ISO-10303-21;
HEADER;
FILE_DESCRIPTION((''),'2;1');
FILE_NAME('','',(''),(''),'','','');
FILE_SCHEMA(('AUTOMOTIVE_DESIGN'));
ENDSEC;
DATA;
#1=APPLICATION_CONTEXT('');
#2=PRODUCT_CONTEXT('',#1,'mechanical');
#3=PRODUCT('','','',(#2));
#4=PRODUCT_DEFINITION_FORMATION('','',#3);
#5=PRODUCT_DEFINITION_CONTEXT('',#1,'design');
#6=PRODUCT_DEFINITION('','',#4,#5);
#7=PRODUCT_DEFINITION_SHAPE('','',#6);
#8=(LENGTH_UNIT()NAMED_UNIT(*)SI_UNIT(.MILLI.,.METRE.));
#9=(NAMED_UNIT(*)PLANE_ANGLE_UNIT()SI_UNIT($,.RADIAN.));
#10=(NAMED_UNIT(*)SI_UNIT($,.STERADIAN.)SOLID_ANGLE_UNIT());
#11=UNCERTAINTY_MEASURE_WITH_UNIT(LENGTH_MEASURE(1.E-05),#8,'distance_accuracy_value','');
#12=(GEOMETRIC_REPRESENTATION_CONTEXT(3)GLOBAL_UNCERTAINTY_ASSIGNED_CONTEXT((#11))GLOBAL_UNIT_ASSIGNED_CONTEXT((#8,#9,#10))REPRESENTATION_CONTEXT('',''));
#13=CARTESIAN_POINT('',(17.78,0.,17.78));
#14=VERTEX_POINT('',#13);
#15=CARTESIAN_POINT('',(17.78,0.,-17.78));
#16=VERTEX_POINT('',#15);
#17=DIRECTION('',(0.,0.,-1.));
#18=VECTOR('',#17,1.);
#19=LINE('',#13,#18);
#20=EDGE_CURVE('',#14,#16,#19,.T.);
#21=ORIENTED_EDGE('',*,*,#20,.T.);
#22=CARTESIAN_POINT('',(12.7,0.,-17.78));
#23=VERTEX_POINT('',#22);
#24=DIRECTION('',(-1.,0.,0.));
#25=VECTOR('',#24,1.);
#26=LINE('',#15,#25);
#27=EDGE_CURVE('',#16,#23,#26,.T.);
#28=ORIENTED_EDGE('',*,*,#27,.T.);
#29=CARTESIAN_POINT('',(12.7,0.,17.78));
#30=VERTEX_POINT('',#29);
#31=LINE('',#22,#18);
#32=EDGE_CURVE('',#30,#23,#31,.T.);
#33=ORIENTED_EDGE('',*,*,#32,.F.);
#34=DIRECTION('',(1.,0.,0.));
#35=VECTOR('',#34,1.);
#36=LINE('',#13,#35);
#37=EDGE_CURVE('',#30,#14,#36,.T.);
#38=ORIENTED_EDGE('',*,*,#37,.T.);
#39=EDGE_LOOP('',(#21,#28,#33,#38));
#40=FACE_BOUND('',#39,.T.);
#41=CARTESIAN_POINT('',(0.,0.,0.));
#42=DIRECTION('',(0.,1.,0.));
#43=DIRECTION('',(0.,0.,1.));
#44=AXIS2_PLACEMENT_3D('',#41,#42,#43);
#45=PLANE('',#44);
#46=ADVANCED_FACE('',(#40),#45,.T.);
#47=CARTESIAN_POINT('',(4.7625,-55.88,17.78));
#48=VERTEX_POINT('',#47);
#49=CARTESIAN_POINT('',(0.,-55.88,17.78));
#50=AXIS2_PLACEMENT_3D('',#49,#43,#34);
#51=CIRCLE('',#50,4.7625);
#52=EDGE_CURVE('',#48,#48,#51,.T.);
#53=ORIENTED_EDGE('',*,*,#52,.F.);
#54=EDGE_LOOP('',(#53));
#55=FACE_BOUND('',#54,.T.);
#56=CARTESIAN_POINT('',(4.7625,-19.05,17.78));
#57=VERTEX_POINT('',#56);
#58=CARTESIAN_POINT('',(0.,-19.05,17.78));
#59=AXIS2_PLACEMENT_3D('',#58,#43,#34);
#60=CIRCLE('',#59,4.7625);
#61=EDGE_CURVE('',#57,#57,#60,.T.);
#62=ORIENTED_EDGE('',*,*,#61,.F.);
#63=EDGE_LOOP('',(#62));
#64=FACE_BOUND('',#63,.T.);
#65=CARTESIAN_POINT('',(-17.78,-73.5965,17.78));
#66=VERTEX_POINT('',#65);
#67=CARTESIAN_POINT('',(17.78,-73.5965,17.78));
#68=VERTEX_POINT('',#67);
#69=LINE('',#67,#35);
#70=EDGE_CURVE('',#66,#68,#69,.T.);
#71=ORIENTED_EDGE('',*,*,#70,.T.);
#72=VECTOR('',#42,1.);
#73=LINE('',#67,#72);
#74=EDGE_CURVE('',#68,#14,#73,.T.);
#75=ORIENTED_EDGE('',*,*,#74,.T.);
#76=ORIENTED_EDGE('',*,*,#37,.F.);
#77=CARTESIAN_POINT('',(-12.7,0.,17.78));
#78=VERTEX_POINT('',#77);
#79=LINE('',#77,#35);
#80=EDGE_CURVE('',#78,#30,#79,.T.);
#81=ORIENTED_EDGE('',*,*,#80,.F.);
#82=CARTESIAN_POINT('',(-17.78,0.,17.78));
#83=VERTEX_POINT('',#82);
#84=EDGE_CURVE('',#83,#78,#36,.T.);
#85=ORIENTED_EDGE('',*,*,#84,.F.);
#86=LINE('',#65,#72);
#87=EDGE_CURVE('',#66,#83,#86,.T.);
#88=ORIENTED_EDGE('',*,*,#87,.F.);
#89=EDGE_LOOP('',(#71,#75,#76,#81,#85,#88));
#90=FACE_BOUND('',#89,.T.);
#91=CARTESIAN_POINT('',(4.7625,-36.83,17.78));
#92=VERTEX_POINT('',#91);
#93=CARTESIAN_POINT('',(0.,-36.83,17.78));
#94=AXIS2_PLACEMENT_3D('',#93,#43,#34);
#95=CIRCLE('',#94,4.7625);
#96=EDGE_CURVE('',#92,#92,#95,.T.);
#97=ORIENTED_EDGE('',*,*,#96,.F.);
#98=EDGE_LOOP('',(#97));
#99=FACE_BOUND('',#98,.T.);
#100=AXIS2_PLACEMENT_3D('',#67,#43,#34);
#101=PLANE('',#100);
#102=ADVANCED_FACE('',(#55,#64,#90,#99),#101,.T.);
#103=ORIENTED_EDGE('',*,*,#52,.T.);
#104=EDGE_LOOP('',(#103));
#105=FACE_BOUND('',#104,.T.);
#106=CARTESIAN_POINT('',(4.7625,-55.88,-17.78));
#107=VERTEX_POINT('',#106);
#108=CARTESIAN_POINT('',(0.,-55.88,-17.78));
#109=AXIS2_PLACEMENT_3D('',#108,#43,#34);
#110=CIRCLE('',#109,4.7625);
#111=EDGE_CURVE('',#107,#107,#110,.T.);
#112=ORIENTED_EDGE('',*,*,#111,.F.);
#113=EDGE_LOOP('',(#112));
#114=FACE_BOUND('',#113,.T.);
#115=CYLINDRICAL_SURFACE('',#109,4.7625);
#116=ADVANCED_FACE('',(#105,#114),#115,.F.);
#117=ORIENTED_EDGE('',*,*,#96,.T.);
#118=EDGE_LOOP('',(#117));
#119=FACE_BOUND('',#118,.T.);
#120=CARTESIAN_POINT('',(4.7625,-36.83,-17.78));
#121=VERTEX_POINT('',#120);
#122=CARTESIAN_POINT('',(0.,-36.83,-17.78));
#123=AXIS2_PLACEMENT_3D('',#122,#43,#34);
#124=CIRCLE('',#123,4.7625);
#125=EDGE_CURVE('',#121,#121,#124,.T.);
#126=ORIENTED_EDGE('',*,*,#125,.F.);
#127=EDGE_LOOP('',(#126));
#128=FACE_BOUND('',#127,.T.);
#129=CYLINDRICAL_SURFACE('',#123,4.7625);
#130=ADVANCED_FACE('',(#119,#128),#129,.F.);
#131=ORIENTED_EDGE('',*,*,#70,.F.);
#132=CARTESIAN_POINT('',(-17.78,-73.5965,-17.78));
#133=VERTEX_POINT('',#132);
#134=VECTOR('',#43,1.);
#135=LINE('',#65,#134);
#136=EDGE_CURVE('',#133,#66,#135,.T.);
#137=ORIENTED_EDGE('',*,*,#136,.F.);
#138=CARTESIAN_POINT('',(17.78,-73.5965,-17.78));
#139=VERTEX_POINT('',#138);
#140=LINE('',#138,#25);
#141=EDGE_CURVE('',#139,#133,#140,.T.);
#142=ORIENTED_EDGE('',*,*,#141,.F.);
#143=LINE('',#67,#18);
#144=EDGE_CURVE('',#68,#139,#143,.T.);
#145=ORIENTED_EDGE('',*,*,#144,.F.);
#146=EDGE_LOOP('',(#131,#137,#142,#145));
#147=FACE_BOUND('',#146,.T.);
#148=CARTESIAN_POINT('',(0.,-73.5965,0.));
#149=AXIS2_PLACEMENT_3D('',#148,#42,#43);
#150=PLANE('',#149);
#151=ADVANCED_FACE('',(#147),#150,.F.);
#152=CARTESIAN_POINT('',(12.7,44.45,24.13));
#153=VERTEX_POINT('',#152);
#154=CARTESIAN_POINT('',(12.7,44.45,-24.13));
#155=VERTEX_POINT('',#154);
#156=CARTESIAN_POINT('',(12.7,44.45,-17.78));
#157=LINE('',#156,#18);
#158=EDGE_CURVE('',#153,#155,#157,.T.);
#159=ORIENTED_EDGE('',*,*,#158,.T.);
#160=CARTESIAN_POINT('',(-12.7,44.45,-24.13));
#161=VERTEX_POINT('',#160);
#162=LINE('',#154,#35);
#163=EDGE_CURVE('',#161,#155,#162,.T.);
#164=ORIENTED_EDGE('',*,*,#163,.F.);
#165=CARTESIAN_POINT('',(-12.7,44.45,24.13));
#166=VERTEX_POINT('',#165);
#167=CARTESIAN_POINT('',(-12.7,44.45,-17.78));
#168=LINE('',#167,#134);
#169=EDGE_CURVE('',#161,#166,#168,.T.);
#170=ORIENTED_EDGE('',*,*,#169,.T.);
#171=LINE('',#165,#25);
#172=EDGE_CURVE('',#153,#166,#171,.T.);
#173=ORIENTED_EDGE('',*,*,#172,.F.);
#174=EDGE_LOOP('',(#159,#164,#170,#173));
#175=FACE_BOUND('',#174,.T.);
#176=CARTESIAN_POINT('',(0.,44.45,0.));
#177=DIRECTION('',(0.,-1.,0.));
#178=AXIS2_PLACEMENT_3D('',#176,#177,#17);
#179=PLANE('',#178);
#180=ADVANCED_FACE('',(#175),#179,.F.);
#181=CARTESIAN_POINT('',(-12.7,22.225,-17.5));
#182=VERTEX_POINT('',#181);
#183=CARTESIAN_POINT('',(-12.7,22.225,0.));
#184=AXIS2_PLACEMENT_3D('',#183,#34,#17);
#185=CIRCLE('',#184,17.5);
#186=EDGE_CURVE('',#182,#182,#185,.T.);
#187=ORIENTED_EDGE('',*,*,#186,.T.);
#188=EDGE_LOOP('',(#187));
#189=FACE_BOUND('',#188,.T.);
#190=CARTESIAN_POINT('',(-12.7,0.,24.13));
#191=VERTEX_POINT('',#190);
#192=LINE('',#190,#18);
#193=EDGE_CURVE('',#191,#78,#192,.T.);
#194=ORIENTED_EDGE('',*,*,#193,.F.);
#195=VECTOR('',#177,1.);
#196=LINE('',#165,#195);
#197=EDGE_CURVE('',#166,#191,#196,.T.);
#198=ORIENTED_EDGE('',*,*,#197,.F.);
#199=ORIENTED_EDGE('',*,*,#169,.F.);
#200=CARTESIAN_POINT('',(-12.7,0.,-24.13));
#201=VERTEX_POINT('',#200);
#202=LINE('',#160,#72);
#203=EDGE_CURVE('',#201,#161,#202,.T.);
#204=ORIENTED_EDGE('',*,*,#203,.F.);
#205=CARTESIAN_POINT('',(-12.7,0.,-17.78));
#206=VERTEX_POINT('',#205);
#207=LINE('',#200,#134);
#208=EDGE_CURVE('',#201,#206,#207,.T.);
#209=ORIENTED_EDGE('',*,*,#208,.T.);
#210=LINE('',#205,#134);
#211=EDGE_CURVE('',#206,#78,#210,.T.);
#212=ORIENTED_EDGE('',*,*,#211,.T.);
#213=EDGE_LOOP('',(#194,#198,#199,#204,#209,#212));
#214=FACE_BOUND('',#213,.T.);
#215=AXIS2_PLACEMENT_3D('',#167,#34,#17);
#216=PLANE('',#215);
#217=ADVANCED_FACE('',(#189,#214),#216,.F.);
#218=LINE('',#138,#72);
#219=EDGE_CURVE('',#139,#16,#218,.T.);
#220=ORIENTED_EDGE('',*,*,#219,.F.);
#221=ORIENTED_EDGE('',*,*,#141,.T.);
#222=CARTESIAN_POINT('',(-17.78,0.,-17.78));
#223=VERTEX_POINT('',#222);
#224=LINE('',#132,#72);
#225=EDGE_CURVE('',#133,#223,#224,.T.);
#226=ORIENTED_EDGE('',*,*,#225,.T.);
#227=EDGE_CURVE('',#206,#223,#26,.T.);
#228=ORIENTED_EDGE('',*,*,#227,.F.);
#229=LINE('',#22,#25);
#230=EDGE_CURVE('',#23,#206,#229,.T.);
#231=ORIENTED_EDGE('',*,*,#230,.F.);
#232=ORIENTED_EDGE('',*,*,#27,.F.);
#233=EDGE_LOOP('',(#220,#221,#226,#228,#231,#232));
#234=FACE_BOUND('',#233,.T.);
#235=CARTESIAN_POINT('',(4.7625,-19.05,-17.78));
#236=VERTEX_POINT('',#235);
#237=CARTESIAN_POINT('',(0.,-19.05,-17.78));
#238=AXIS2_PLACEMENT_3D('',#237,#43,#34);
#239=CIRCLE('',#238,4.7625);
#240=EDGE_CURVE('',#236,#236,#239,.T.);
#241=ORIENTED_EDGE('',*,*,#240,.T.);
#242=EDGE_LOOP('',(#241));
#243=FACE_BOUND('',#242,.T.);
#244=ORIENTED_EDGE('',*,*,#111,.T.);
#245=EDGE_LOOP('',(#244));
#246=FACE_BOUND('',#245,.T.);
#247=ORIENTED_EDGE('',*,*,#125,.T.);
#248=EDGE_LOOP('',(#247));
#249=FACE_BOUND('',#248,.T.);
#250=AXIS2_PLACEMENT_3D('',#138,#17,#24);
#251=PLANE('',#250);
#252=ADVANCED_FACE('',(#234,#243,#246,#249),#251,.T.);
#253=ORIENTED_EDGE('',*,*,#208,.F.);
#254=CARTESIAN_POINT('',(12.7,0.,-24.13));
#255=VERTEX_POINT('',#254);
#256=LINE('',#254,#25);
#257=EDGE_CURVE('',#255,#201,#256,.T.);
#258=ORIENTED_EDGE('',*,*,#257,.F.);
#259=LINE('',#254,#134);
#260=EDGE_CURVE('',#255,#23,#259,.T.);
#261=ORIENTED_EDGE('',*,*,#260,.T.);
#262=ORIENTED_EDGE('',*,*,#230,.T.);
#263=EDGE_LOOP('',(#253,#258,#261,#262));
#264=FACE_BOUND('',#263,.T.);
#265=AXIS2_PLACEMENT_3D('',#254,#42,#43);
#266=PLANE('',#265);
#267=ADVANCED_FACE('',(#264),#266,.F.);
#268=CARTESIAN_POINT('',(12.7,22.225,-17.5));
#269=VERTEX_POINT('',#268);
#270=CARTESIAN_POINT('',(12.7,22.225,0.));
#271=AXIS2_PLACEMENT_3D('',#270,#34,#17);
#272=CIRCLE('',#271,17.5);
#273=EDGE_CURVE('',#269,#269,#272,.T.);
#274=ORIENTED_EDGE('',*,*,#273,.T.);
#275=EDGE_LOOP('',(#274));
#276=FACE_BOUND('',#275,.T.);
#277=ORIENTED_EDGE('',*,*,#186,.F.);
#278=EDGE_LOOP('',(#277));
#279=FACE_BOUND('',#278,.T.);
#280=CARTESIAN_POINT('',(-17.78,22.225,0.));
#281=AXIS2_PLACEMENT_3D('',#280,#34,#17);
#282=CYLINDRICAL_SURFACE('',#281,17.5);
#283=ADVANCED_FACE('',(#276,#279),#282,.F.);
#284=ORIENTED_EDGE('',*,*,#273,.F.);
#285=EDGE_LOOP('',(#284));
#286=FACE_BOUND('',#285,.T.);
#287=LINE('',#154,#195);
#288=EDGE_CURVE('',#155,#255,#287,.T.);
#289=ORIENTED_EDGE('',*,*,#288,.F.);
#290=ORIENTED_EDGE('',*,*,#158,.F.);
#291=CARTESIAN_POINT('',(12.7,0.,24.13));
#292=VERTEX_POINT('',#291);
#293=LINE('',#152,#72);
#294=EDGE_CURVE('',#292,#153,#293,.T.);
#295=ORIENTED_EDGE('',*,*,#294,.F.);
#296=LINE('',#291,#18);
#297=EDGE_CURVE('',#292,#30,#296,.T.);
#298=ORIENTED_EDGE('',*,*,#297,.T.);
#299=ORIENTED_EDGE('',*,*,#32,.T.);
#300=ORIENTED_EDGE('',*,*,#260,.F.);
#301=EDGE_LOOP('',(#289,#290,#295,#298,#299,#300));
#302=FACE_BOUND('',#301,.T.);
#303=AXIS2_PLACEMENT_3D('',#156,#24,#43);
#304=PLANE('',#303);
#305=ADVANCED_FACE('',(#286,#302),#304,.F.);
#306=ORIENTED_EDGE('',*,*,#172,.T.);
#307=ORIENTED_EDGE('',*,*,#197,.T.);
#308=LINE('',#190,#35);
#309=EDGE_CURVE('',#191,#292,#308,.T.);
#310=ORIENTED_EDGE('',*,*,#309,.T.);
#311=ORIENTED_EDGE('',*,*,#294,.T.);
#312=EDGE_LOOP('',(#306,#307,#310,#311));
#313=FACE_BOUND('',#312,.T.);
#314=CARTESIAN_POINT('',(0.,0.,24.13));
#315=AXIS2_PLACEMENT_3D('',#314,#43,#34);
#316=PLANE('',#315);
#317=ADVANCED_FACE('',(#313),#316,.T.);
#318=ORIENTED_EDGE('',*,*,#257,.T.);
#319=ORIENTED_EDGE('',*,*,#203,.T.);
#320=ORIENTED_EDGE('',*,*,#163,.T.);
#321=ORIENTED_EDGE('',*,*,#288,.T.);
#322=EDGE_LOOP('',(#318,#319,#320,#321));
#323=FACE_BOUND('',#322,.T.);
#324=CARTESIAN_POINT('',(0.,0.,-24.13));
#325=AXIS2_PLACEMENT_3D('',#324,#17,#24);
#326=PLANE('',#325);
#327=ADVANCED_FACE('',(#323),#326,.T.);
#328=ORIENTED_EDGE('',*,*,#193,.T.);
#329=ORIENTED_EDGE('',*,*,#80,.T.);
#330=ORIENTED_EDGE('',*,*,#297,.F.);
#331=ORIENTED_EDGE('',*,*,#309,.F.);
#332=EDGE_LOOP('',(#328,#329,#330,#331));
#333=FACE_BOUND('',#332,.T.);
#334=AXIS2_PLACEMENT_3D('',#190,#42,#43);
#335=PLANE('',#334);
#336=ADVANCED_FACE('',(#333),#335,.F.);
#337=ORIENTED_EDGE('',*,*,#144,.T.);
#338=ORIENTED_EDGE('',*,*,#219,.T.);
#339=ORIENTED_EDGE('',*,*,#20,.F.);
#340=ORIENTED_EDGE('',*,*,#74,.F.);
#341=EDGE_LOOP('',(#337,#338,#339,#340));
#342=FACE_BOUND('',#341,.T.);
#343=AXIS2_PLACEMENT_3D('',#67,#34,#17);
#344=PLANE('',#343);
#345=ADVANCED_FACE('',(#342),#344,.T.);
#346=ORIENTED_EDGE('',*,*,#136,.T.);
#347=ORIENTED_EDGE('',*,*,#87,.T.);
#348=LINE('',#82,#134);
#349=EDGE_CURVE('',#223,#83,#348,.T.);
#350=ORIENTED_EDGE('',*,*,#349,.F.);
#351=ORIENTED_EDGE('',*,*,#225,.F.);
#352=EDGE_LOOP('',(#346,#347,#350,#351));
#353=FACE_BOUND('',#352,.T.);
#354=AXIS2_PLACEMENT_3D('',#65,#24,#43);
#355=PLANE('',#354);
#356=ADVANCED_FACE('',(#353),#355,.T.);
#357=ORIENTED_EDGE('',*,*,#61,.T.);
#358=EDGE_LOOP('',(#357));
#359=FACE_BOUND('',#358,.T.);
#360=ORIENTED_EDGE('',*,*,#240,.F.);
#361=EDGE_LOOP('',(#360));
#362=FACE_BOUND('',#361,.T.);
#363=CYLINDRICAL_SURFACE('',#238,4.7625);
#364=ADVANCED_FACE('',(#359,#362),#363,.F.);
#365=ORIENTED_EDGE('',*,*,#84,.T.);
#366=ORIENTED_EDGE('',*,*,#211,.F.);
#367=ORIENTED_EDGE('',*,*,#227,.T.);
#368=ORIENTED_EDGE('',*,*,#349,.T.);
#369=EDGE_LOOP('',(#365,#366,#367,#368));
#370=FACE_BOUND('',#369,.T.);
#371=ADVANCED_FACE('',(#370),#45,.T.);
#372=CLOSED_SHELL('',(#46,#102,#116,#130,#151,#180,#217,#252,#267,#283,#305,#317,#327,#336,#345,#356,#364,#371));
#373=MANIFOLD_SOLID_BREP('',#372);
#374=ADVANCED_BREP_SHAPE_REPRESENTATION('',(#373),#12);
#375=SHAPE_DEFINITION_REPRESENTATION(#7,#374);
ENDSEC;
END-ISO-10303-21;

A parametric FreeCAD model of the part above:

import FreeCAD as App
import Part
import Sketcher
Q = App.Units.Quantity

doc = App.newDocument("Part")
body = doc.addObject("PartDesign::Body", "Body")

sketch1 = doc.addObject("Sketcher::SketchObject", "Sketch")
body.addObject(sketch1)
sketch1.AttachmentSupport = (doc.XZ_Plane, [""])
sketch1.MapMode = "FlatFace"
sketch1.addGeometry([
    Part.LineSegment(App.Vector(-17.78, -17.78, 0), App.Vector(-17.78, 17.78, 0)),
    Part.LineSegment(App.Vector(-17.78, 17.78, 0), App.Vector(17.78, 17.78, 0)),
    Part.LineSegment(App.Vector(17.78, 17.78, 0), App.Vector(17.78, -17.78, 0)),
    Part.LineSegment(App.Vector(17.78, -17.78, 0), App.Vector(-17.78, -17.78, 0)),
], False)
sketch1.addConstraint([
    Sketcher.Constraint("Coincident", 0, 2, 1, 1),
    Sketcher.Constraint("Coincident", 1, 2, 2, 1),
    Sketcher.Constraint("Coincident", 2, 2, 3, 1),
    Sketcher.Constraint("Coincident", 3, 2, 0, 1),
    Sketcher.Constraint("Vertical", 0),
    Sketcher.Constraint("Horizontal", 1),
    Sketcher.Constraint("Vertical", 2),
    Sketcher.Constraint("Horizontal", 3),
    Sketcher.Constraint("Symmetric", 0, 2, 2, 2, -1, 1),
    Sketcher.Constraint("Equal", 3, 0),
    Sketcher.Constraint("DistanceX", 1, 1, 1, 2, Q("1.4 in")),
])
pad1 = doc.addObject("PartDesign::Pad", "Pad")
body.addObject(pad1)
pad1.Profile = sketch1
pad1.Length = Q("2.8975 in")

sketch2 = doc.addObject("Sketcher::SketchObject", "Sketch001")
body.addObject(sketch2)
sketch2.AttachmentSupport = (doc.XY_Plane, [""])
sketch2.MapMode = "FlatFace"
sketch2.AttachmentOffset = App.Placement(App.Vector(0, 0, 0.7 * 25.4), App.Rotation())
sketch2.addGeometry([
    Part.Circle(App.Vector(0, -19.05, 0), App.Vector(0, 0, 1), 4.7625),
    Part.Circle(App.Vector(0, -36.83, 0), App.Vector(0, 0, 1), 4.7625),
    Part.Circle(App.Vector(0, -55.88, 0), App.Vector(0, 0, 1), 4.7625),
], False)
sketch2.addConstraint([
    Sketcher.Constraint("Equal", 0, 1),
    Sketcher.Constraint("Equal", 1, 2),
    Sketcher.Constraint("PointOnObject", 0, 3, -2),
    Sketcher.Constraint("PointOnObject", 1, 3, -2),
    Sketcher.Constraint("PointOnObject", 2, 3, -2),
    Sketcher.Constraint("Diameter", 0, Q("0.375 in")),
    Sketcher.Constraint("DistanceY", 2, 3, -1, 1, Q("2.2 in")),
    Sketcher.Constraint("DistanceY", 1, 3, 0, 3, Q("0.7 in")),
    Sketcher.Constraint("DistanceY", 0, 3, -1, 1, Q("0.75 in")),
])
pocket1 = doc.addObject("PartDesign::Pocket", "Pocket")
body.addObject(pocket1)
pocket1.Profile = sketch2
pocket1.Type = "ThroughAll"

sketch3 = doc.addObject("Sketcher::SketchObject", "Sketch002")
body.addObject(sketch3)
sketch3.AttachmentSupport = (doc.XZ_Plane, [""])
sketch3.MapMode = "FlatFace"
sketch3.addGeometry([
    Part.LineSegment(App.Vector(-12.7, -17.78, 0), App.Vector(-12.7, 17.78, 0)),
    Part.LineSegment(App.Vector(-12.7, 17.78, 0), App.Vector(12.7, 17.78, 0)),
    Part.LineSegment(App.Vector(12.7, 17.78, 0), App.Vector(12.7, -17.78, 0)),
    Part.LineSegment(App.Vector(12.7, -17.78, 0), App.Vector(-12.7, -17.78, 0)),
], False)
sketch3.addConstraint([
    Sketcher.Constraint("Coincident", 0, 2, 1, 1),
    Sketcher.Constraint("Coincident", 1, 2, 2, 1),
    Sketcher.Constraint("Coincident", 2, 2, 3, 1),
    Sketcher.Constraint("Coincident", 3, 2, 0, 1),
    Sketcher.Constraint("Vertical", 0),
    Sketcher.Constraint("Horizontal", 1),
    Sketcher.Constraint("Vertical", 2),
    Sketcher.Constraint("Horizontal", 3),
    Sketcher.Constraint("Symmetric", 0, 2, 2, 2, -1, 1),
    Sketcher.Constraint("DistanceX", 1, 1, 1, 2, Q("1 in")),
    Sketcher.Constraint("DistanceY", 0, 1, 0, 2, Q("1.4 in")),
])
pad2 = doc.addObject("PartDesign::Pad", "Pad001")
body.addObject(pad2)
pad2.Profile = sketch3
pad2.Length = Q("1.75 in")
pad2.Reversed = True

sketch4 = doc.addObject("Sketcher::SketchObject", "Sketch003")
body.addObject(sketch4)
sketch4.AttachmentSupport = (doc.XY_Plane, [""])
sketch4.MapMode = "FlatFace"
sketch4.AttachmentOffset = App.Placement(App.Vector(0, 0, 0.7 * 25.4), App.Rotation())
sketch4.addGeometry([
    Part.LineSegment(App.Vector(-12.7, 44.45, 0), App.Vector(-12.7, 0, 0)),
    Part.LineSegment(App.Vector(-12.7, 0, 0), App.Vector(12.7, 0, 0)),
    Part.LineSegment(App.Vector(12.7, 0, 0), App.Vector(12.7, 44.45, 0)),
    Part.LineSegment(App.Vector(12.7, 44.45, 0), App.Vector(-12.7, 44.45, 0)),
], False)
sketch4.addConstraint([
    Sketcher.Constraint("Coincident", 0, 2, 1, 1),
    Sketcher.Constraint("Coincident", 1, 2, 2, 1),
    Sketcher.Constraint("Coincident", 2, 2, 3, 1),
    Sketcher.Constraint("Coincident", 3, 2, 0, 1),
    Sketcher.Constraint("Vertical", 0),
    Sketcher.Constraint("Horizontal", 1),
    Sketcher.Constraint("Vertical", 2),
    Sketcher.Constraint("Horizontal", 3),
    Sketcher.Constraint("Symmetric", 0, 2, 1, 2, -1, 1),
    Sketcher.Constraint("DistanceX", 1, 1, 1, 2, Q("1 in")),
    Sketcher.Constraint("DistanceY", 0, 2, 0, 1, Q("1.75 in")),
])
pad3 = doc.addObject("PartDesign::Pad", "Pad002")
body.addObject(pad3)
pad3.Profile = sketch4
pad3.Length = Q("0.25 in")

sketch5 = doc.addObject("Sketcher::SketchObject", "Sketch004")
body.addObject(sketch5)
sketch5.AttachmentSupport = (doc.XY_Plane, [""])
sketch5.MapMode = "FlatFace"
sketch5.AttachmentOffset = App.Placement(App.Vector(0, 0, -0.7 * 25.4), App.Rotation())
sketch5.addGeometry([
    Part.LineSegment(App.Vector(12.7, 44.45, 0), App.Vector(12.7, 0, 0)),
    Part.LineSegment(App.Vector(12.7, 0, 0), App.Vector(-12.7, 0, 0)),
    Part.LineSegment(App.Vector(-12.7, 0, 0), App.Vector(-12.7, 44.45, 0)),
    Part.LineSegment(App.Vector(-12.7, 44.45, 0), App.Vector(12.7, 44.45, 0)),
], False)
sketch5.addConstraint([
    Sketcher.Constraint("Coincident", 0, 2, 1, 1),
    Sketcher.Constraint("Coincident", 1, 2, 2, 1),
    Sketcher.Constraint("Coincident", 2, 2, 3, 1),
    Sketcher.Constraint("Coincident", 3, 2, 0, 1),
    Sketcher.Constraint("Vertical", 0),
    Sketcher.Constraint("Horizontal", 1),
    Sketcher.Constraint("Vertical", 2),
    Sketcher.Constraint("Horizontal", 3),
    Sketcher.Constraint("Symmetric", 0, 2, 1, 2, -1, 1),
    Sketcher.Constraint("DistanceX", 1, 2, 1, 1, Q("1 in")),
    Sketcher.Constraint("DistanceY", 0, 2, 0, 1, Q("1.75 in")),
])
pad4 = doc.addObject("PartDesign::Pad", "Pad003")
body.addObject(pad4)
pad4.Profile = sketch5
pad4.Length = Q("0.25 in")
pad4.Reversed = True

sketch6 = doc.addObject("Sketcher::SketchObject", "Sketch005")
body.addObject(sketch6)
sketch6.AttachmentSupport = (doc.YZ_Plane, [""])
sketch6.MapMode = "FlatFace"
sketch6.AttachmentOffset = App.Placement(App.Vector(0, 0, 0.5 * 25.4), App.Rotation())
sketch6.addGeometry(Part.Circle(App.Vector(22.225, 0, 0), App.Vector(0, 0, 1), 17.5), False)
sketch6.addConstraint([
    Sketcher.Constraint("PointOnObject", 0, 3, -1),
    Sketcher.Constraint("Diameter", 0, 35.0),
    Sketcher.Constraint("DistanceX", -1, 1, 0, 3, Q("0.875 in")),
])
pocket2 = doc.addObject("PartDesign::Pocket", "Pocket001")
body.addObject(pocket2)
pocket2.Profile = sketch6
pocket2.Type = "ThroughAll"

doc.recompute()
